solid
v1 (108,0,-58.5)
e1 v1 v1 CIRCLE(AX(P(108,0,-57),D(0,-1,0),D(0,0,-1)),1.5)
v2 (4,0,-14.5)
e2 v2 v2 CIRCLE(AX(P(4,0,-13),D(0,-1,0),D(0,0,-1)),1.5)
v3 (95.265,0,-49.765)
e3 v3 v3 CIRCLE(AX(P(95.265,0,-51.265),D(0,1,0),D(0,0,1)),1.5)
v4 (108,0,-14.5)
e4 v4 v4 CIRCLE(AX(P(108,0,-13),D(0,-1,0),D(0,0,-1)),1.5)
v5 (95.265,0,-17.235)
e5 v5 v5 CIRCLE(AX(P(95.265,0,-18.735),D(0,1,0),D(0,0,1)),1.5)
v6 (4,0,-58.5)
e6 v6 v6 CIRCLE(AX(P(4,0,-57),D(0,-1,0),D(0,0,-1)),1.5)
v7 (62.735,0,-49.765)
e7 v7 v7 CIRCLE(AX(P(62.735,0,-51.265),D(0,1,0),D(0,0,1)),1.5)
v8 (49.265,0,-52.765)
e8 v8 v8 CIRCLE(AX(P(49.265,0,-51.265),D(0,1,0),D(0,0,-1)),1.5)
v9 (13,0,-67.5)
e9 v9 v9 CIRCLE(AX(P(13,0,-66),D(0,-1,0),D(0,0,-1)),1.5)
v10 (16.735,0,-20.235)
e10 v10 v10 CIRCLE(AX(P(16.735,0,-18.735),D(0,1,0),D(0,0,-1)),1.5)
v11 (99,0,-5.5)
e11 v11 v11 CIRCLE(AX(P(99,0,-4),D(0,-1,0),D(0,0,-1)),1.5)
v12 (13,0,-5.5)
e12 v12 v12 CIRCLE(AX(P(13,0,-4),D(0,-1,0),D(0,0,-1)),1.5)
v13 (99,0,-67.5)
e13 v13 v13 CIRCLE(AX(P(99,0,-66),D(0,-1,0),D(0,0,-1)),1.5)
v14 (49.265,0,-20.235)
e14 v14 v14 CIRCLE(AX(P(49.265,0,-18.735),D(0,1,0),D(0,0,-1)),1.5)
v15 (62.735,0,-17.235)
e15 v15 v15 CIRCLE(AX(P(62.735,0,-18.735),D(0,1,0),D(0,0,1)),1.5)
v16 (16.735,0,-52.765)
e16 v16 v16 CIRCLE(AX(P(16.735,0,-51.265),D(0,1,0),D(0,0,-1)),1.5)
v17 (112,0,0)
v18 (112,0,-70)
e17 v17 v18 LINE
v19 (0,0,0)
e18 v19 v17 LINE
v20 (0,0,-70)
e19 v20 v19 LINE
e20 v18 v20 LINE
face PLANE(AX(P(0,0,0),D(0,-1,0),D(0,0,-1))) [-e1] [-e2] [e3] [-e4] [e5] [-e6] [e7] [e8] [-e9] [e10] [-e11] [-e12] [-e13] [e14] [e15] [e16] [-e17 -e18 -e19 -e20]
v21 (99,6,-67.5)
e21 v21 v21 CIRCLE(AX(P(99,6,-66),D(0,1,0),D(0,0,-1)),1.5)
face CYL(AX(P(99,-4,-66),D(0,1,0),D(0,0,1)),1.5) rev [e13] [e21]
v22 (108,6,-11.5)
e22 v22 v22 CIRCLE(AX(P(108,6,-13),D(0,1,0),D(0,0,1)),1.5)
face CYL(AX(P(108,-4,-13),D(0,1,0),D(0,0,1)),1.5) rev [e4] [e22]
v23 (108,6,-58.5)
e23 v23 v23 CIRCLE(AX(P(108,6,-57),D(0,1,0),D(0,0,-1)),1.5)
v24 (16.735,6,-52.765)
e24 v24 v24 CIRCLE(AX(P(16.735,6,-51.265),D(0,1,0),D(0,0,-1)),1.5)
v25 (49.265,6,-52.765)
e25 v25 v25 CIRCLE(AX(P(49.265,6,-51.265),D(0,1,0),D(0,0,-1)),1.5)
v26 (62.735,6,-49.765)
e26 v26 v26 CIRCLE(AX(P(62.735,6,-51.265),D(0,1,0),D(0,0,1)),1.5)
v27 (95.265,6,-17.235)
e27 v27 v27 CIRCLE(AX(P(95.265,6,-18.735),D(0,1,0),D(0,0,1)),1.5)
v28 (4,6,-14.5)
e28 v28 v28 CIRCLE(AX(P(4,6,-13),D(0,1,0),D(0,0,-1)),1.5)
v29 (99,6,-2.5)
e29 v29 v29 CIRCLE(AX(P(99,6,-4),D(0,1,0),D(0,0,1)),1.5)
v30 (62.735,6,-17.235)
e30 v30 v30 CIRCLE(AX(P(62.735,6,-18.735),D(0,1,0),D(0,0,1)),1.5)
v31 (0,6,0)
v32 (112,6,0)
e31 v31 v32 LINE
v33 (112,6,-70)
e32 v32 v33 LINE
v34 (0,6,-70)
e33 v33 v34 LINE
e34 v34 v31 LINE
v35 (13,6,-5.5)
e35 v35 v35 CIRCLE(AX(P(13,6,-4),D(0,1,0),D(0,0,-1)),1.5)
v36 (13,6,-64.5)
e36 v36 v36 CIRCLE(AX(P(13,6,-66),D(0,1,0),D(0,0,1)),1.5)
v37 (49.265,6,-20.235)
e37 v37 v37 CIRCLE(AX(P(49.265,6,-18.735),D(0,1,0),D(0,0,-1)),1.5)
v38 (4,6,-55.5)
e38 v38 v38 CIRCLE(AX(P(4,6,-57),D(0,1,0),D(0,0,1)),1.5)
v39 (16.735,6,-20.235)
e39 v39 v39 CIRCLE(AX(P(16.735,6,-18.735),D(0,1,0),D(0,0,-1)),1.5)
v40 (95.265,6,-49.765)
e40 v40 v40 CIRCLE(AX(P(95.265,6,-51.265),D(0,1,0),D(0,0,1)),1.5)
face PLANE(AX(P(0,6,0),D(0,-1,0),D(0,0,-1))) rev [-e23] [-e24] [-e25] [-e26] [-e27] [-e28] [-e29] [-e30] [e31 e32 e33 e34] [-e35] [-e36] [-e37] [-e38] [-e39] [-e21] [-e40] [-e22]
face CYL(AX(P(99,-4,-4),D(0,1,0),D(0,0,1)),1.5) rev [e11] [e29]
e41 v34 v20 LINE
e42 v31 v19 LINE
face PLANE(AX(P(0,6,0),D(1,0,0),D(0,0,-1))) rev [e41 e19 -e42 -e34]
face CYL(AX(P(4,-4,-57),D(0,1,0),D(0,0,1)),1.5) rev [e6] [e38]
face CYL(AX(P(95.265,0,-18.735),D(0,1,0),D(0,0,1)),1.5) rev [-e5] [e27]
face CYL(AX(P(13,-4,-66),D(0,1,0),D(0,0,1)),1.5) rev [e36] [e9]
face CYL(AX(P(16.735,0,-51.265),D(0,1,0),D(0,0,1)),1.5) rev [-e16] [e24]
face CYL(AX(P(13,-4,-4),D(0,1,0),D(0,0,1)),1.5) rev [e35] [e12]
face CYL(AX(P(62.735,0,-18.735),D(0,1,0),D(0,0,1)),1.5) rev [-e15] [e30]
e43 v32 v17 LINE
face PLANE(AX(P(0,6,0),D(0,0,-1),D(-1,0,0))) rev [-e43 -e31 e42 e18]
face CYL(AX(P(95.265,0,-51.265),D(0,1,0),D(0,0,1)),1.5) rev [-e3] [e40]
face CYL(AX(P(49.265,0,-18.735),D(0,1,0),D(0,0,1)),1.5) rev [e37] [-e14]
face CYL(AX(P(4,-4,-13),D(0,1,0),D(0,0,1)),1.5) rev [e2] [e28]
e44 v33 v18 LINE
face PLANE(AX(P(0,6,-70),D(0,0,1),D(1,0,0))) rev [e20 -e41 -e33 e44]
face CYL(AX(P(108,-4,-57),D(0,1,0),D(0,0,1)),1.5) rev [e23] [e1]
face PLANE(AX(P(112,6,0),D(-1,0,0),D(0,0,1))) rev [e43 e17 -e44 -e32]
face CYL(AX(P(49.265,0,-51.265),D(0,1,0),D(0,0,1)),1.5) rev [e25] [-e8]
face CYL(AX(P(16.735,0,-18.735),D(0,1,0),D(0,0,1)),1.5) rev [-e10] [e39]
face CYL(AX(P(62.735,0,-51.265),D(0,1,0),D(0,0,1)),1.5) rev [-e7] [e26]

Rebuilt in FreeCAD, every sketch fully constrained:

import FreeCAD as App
import Part
import Sketcher
from FreeCAD import Vector
Q = App.Units.Quantity

doc = App.newDocument("Part")
body = doc.addObject("PartDesign::Body", "Body")

# Sketch on XZ plane
sketch1 = doc.addObject("Sketcher::SketchObject", "Sketch")
body.addObject(sketch1)
sketch1.AttachmentSupport = (doc.XZ_Plane, [""])
sketch1.MapMode = "FlatFace"
sketch1.addGeometry(Part.LineSegment(Vector(0, -70, 0), Vector(0, 0, 0)), False)
sketch1.addGeometry(Part.LineSegment(Vector(0, 0, 0), Vector(112, 0, 0)), False)
sketch1.addGeometry(Part.LineSegment(Vector(112, 0, 0), Vector(112, -70, 0)), False)
sketch1.addGeometry(Part.LineSegment(Vector(112, -70, 0), Vector(0, -70, 0)), False)
sketch1.addConstraint(Sketcher.Constraint("Coincident", 0, 2, 1, 1))
sketch1.addConstraint(Sketcher.Constraint("Coincident", 1, 2, 2, 1))
sketch1.addConstraint(Sketcher.Constraint("Coincident", 2, 2, 3, 1))
sketch1.addConstraint(Sketcher.Constraint("Coincident", 3, 2, 0, 1))
sketch1.addConstraint(Sketcher.Constraint("Vertical", 0))
sketch1.addConstraint(Sketcher.Constraint("Horizontal", 1))
sketch1.addConstraint(Sketcher.Constraint("Vertical", 2))
sketch1.addConstraint(Sketcher.Constraint("Horizontal", 3))
sketch1.addConstraint(Sketcher.Constraint("Coincident", 0, 2, -1, 1))
sketch1.addConstraint(Sketcher.Constraint("DistanceX", 1, 1, 1, 2, Q("112 mm")))
sketch1.addConstraint(Sketcher.Constraint("DistanceY", 0, 1, 0, 2, Q("70 mm")))
pad1 = doc.addObject("PartDesign::Pad", "Pad")
body.addObject(pad1)
pad1.Profile = sketch1
pad1.Length = 6
pad1.Reversed = True

# Sketch on XZ plane
sketch2 = doc.addObject("Sketcher::SketchObject", "Sketch001")
body.addObject(sketch2)
sketch2.AttachmentSupport = (doc.XZ_Plane, [""])
sketch2.MapMode = "FlatFace"
sketch2.AttachmentOffset = App.Placement(Vector(0, 0, -6), App.Rotation())
sketch2.addGeometry(Part.Circle(Vector(62.7, -51.3, 0), Vector(0, 0, 1), 1.5), False)
sketch2.addGeometry(Part.Circle(Vector(95.3, -51.3, 0), Vector(0, 0, 1), 1.5), False)
sketch2.addGeometry(Part.Circle(Vector(62.7, -18.7, 0), Vector(0, 0, 1), 1.5), False)
sketch2.addGeometry(Part.Circle(Vector(95.3, -18.7, 0), Vector(0, 0, 1), 1.5), False)
sketch2.addGeometry(Part.Circle(Vector(16.7, -18.7, 0), Vector(0, 0, 1), 1.5), False)
sketch2.addGeometry(Part.Circle(Vector(16.7, -51.3, 0), Vector(0, 0, 1), 1.5), False)
sketch2.addGeometry(Part.Circle(Vector(49.3, -51.3, 0), Vector(0, 0, 1), 1.5), False)
sketch2.addGeometry(Part.Circle(Vector(49.3, -18.7, 0), Vector(0, 0, 1), 1.5), False)
sketch2.addConstraint(Sketcher.Constraint("Equal", 0, 1))
sketch2.addConstraint(Sketcher.Constraint("Equal", 1, 2))
sketch2.addConstraint(Sketcher.Constraint("Equal", 2, 3))
sketch2.addConstraint(Sketcher.Constraint("Equal", 3, 4))
sketch2.addConstraint(Sketcher.Constraint("Equal", 4, 5))
sketch2.addConstraint(Sketcher.Constraint("Equal", 5, 6))
sketch2.addConstraint(Sketcher.Constraint("Equal", 6, 7))
sketch2.addConstraint(Sketcher.Constraint("Horizontal", 0, 3, 1, 3))
sketch2.addConstraint(Sketcher.Constraint("Horizontal", 2, 3, 3, 3))
sketch2.addConstraint(Sketcher.Constraint("Horizontal", 3, 3, 4, 3))
sketch2.addConstraint(Sketcher.Constraint("Horizontal", 1, 3, 5, 3))
sketch2.addConstraint(Sketcher.Constraint("Horizontal", 5, 3, 6, 3))
sketch2.addConstraint(Sketcher.Constraint("Horizontal", 4, 3, 7, 3))
sketch2.addConstraint(Sketcher.Constraint("Vertical", 0, 3, 2, 3))
sketch2.addConstraint(Sketcher.Constraint("Vertical", 1, 3, 3, 3))
sketch2.addConstraint(Sketcher.Constraint("Vertical", 4, 3, 5, 3))
sketch2.addConstraint(Sketcher.Constraint("Vertical", 6, 3, 7, 3))
sketch2.addConstraint(Sketcher.Constraint("Diameter", 0, Q("3 mm")))
sketch2.addConstraint(Sketcher.Constraint("DistanceX", 4, 3, 2, 3, Q("46 mm")))
sketch2.addConstraint(Sketcher.Constraint("DistanceX", 6, 3, 1, 3, Q("46 mm")))
sketch2.addConstraint(Sketcher.Constraint("DistanceX", 0, 3, 1, 3, Q("32.53 mm")))
sketch2.addConstraint(Sketcher.Constraint("DistanceY", 0, 3, 2, 3, Q("32.53 mm")))
sketch2.addConstraint(Sketcher.Constraint("DistanceX", -1, 1, 0, 3, Q("62.735 mm")))
sketch2.addConstraint(Sketcher.Constraint("DistanceY", 0, 3, -1, 1, Q("51.265 mm")))
pocket1 = doc.addObject("PartDesign::Pocket", "Pocket")
body.addObject(pocket1)
pocket1.Profile = sketch2
pocket1.Length = 6
pocket1.Reversed = True

# Sketch on XZ plane
sketch3 = doc.addObject("Sketcher::SketchObject", "Sketch002")
body.addObject(sketch3)
sketch3.AttachmentSupport = (doc.XZ_Plane, [""])
sketch3.MapMode = "FlatFace"
sketch3.AttachmentOffset = App.Placement(Vector(0, 0, -6), App.Rotation())
sketch3.addGeometry(Part.Circle(Vector(4, -57, 0), Vector(0, 0, 1), 1.5), False)
sketch3.addGeometry(Part.Circle(Vector(13, -66, 0), Vector(0, 0, 1), 1.5), False)
sketch3.addGeometry(Part.Circle(Vector(99, -66, 0), Vector(0, 0, 1), 1.5), False)
sketch3.addGeometry(Part.Circle(Vector(108, -57, 0), Vector(0, 0, 1), 1.5), False)
sketch3.addGeometry(Part.Circle(Vector(108, -13, 0), Vector(0, 0, 1), 1.5), False)
sketch3.addGeometry(Part.Circle(Vector(99, -4, 0), Vector(0, 0, 1), 1.5), False)
sketch3.addGeometry(Part.Circle(Vector(13, -4, 0), Vector(0, 0, 1), 1.5), False)
sketch3.addGeometry(Part.Circle(Vector(4, -13, 0), Vector(0, 0, 1), 1.5), False)
sketch3.addConstraint(Sketcher.Constraint("Equal", 0, 1))
sketch3.addConstraint(Sketcher.Constraint("Equal", 1, 2))
sketch3.addConstraint(Sketcher.Constraint("Equal", 2, 3))
sketch3.addConstraint(Sketcher.Constraint("Equal", 3, 4))
sketch3.addConstraint(Sketcher.Constraint("Equal", 4, 5))
sketch3.addConstraint(Sketcher.Constraint("Equal", 5, 6))
sketch3.addConstraint(Sketcher.Constraint("Equal", 6, 7))
sketch3.addConstraint(Sketcher.Constraint("Horizontal", 1, 3, 2, 3))
sketch3.addConstraint(Sketcher.Constraint("Horizontal", 0, 3, 3, 3))
sketch3.addConstraint(Sketcher.Constraint("Horizontal", 5, 3, 6, 3))
sketch3.addConstraint(Sketcher.Constraint("Horizontal", 4, 3, 7, 3))
sketch3.addConstraint(Sketcher.Constraint("Vertical", 3, 3, 4, 3))
sketch3.addConstraint(Sketcher.Constraint("Vertical", 2, 3, 5, 3))
sketch3.addConstraint(Sketcher.Constraint("Vertical", 1, 3, 6, 3))
sketch3.addConstraint(Sketcher.Constraint("Vertical", 0, 3, 7, 3))
sketch3.addConstraint(Sketcher.Constraint("Diameter", 0, Q("3 mm")))
sketch3.addConstraint(Sketcher.Constraint("DistanceX", -1, 1, 0, 3, Q("4 mm")))
sketch3.addConstraint(Sketcher.Constraint("DistanceY", 0, 3, -1, 1, Q("57 mm")))
sketch3.addConstraint(Sketcher.Constraint("DistanceX", -1, 1, 1, 3, Q("13 mm")))
sketch3.addConstraint(Sketcher.Constraint("DistanceY", 1, 3, -1, 1, Q("66 mm")))
sketch3.addConstraint(Sketcher.Constraint("DistanceX", -1, 1, 2, 3, Q("99 mm")))
sketch3.addConstraint(Sketcher.Constraint("DistanceX", -1, 1, 3, 3, Q("108 mm")))
sketch3.addConstraint(Sketcher.Constraint("DistanceY", 4, 3, -1, 1, Q("13 mm")))
sketch3.addConstraint(Sketcher.Constraint("DistanceY", 5, 3, -1, 1, Q("4 mm")))
pocket2 = doc.addObject("PartDesign::Pocket", "Pocket001")
body.addObject(pocket2)
pocket2.Profile = sketch3
pocket2.Length = 10
pocket2.Reversed = True

doc.recompute()
